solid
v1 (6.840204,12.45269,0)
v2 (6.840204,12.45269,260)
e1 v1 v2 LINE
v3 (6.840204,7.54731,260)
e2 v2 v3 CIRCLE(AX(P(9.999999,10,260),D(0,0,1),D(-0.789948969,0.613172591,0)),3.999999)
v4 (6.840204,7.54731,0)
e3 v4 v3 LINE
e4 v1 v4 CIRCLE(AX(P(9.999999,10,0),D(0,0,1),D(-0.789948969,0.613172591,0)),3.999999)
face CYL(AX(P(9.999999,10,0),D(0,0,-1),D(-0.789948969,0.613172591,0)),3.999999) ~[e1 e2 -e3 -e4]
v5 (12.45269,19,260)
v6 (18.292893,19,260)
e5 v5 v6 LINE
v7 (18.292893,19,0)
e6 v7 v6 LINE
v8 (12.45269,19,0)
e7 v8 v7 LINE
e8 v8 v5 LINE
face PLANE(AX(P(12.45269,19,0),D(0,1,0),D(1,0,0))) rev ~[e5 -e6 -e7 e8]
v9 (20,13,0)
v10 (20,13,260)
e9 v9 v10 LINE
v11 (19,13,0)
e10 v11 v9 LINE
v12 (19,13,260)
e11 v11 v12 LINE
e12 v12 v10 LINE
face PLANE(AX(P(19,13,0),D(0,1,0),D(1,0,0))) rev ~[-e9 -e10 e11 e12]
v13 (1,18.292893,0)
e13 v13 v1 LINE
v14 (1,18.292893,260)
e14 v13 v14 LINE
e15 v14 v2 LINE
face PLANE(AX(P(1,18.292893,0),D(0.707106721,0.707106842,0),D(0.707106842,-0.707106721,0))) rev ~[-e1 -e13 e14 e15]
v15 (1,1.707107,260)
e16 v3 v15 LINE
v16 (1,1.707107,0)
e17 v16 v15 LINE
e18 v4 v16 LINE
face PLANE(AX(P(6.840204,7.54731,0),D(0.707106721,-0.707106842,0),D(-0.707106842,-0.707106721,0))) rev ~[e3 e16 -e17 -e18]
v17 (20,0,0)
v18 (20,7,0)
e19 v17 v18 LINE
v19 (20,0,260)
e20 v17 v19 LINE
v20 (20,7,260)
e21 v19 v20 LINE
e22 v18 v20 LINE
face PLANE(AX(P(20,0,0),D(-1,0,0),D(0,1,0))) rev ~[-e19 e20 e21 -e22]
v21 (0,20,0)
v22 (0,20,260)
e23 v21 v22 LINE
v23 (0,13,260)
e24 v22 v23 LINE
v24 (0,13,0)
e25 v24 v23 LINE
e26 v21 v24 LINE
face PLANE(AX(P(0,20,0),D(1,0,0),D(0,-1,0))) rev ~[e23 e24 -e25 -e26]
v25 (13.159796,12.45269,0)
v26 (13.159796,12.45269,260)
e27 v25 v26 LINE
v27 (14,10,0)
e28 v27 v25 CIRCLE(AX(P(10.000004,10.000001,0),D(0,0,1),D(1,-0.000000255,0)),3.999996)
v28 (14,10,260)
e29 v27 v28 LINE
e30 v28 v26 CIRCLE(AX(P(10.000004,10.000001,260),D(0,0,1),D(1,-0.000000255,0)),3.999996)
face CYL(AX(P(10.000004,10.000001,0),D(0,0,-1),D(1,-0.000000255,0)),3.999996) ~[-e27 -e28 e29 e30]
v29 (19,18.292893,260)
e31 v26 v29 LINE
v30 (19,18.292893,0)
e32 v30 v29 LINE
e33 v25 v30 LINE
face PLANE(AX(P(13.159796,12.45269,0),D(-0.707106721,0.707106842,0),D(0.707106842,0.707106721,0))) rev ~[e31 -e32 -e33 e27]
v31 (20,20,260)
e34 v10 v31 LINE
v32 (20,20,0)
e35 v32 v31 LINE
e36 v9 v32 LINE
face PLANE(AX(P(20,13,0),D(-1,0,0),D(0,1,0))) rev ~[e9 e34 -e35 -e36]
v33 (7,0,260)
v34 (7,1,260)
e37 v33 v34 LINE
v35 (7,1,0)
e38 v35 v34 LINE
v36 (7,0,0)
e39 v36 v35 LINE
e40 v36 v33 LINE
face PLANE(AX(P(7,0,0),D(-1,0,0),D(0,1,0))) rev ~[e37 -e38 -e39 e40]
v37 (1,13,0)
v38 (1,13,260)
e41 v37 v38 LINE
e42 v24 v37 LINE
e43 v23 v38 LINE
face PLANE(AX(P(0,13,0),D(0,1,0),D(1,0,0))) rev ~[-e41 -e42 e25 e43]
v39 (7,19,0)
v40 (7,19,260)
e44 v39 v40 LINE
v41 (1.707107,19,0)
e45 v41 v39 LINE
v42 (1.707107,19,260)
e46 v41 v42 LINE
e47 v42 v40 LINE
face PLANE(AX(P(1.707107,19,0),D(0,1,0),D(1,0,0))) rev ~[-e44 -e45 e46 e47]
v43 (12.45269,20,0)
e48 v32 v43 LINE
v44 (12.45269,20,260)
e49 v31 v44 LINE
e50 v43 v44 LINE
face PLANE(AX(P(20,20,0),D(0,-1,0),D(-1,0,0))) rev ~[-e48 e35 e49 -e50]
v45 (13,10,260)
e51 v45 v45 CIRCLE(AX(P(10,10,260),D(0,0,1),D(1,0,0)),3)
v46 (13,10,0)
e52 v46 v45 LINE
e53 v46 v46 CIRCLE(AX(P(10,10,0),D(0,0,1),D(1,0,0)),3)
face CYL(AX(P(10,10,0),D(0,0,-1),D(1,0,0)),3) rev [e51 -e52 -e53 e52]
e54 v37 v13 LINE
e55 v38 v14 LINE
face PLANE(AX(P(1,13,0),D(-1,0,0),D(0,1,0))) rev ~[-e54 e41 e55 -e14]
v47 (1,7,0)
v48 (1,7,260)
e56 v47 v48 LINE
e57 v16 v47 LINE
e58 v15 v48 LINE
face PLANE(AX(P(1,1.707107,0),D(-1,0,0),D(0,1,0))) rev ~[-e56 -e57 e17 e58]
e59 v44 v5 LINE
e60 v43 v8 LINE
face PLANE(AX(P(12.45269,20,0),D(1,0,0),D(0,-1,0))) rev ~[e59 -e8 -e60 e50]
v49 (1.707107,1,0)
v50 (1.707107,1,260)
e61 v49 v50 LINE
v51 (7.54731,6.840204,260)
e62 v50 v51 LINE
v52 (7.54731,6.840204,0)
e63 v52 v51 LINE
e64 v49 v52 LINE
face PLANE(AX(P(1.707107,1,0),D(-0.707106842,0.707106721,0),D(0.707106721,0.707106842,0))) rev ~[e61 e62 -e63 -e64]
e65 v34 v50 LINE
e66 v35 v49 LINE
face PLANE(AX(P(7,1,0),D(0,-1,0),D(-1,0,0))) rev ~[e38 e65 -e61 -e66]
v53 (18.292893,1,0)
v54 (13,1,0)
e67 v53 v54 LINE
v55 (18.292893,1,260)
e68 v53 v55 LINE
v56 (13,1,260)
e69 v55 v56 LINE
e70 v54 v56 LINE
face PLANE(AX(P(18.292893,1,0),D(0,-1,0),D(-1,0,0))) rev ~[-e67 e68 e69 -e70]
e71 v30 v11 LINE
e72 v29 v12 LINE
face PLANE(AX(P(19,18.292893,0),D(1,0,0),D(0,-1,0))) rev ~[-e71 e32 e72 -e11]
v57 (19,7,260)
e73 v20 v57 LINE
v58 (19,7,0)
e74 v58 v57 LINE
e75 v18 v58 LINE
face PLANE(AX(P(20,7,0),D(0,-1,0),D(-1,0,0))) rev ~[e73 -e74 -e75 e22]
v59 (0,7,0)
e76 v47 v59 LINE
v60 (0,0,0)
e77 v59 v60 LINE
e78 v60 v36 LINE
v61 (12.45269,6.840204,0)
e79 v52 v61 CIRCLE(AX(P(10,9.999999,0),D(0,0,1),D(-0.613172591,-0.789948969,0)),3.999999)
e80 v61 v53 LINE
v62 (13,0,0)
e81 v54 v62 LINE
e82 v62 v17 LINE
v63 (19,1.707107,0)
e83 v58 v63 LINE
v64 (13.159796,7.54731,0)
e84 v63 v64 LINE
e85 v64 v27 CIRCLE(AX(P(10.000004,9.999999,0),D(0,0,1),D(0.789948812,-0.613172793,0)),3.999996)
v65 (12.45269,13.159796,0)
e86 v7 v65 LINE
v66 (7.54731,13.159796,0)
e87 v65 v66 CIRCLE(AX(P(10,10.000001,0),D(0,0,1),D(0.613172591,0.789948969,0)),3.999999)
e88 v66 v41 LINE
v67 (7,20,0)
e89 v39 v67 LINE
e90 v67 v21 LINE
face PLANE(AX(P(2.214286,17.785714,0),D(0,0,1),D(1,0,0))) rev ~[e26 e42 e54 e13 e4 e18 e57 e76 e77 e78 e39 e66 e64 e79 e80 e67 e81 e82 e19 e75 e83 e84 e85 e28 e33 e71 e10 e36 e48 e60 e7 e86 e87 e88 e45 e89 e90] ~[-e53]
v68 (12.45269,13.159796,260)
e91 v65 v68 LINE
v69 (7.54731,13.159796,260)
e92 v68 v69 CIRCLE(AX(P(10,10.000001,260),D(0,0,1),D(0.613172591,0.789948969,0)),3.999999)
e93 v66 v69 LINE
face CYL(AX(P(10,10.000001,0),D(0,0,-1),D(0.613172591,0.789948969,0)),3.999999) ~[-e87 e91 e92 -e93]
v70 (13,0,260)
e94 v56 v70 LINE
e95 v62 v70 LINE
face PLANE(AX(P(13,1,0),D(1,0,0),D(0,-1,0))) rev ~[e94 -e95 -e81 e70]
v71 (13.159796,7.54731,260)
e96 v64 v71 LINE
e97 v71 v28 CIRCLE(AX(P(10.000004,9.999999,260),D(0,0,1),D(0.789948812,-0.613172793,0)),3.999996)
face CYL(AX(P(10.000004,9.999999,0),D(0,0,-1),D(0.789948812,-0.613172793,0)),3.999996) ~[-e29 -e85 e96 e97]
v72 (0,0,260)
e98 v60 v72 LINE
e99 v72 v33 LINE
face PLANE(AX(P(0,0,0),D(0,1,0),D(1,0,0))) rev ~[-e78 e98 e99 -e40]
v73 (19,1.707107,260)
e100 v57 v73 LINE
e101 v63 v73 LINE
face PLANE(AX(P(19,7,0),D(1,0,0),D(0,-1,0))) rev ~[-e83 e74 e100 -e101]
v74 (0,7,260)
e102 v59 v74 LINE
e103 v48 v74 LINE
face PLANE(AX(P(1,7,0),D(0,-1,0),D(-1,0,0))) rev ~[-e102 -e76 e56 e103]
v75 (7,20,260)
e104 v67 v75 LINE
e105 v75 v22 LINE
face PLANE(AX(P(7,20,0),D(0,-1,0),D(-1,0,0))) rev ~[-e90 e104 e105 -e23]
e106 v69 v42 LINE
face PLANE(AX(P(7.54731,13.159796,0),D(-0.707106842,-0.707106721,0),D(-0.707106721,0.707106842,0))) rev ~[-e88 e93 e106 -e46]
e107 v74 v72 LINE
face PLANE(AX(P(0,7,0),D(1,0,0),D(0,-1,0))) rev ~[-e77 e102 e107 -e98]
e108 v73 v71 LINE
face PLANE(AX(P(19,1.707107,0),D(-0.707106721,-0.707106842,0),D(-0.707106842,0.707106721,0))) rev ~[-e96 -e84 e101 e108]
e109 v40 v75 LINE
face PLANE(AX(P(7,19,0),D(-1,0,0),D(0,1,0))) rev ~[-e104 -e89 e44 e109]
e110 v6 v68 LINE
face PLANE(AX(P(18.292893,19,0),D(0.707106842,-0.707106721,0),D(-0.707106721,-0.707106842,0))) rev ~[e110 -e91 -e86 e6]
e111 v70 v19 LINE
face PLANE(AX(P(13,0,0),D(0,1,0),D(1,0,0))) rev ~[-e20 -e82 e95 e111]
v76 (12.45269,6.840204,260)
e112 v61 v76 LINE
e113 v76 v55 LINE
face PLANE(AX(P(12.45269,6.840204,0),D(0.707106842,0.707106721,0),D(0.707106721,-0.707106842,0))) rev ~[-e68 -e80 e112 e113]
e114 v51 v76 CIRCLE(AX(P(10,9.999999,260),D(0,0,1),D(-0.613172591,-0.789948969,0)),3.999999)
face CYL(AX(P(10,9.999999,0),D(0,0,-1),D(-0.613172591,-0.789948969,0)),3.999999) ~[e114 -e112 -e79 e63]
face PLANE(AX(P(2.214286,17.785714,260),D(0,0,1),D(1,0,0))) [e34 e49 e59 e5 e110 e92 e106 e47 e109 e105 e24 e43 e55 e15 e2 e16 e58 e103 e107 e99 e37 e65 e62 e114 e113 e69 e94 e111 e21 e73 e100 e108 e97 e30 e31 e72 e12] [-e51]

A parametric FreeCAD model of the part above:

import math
import FreeCAD as App
import Part
import Sketcher
from FreeCAD import Vector
Q = App.Units.Quantity

doc = App.newDocument("Part")
body = doc.addObject("PartDesign::Body", "Body")

# Sketch on XY plane
sketch1 = body.newObject("Sketcher::SketchObject", "Sketch")
sketch1.AttachmentSupport = (doc.getObject("XY_Plane"), [""])
sketch1.MapMode = "FlatFace"
sketch1.addGeometry([
    Part.LineSegment(Vector(0, 20, 0), Vector(0, 13, 0)),  # 0
    Part.LineSegment(Vector(0, 13, 0), Vector(1, 13, 0)),  # 1
    Part.LineSegment(Vector(1, 13, 0), Vector(1, 18.3, 0)),  # 2
    Part.LineSegment(Vector(1, 18.3, 0), Vector(6.8, 12.5, 0)),  # 3
    Part.ArcOfCircle(Part.Circle(Vector(10, 10, 0), Vector(0, 0, 1), 4), math.radians(142), math.radians(218)),  # 4
    Part.LineSegment(Vector(6.8, 7.5, 0), Vector(1, 1.7, 0)),  # 5
    Part.LineSegment(Vector(1, 1.7, 0), Vector(1, 7, 0)),  # 6
    Part.LineSegment(Vector(1, 7, 0), Vector(0, 7, 0)),  # 7
    Part.LineSegment(Vector(0, 7, 0), Vector(0, 0, 0)),  # 8
    Part.LineSegment(Vector(0, 0, 0), Vector(7, 0, 0)),  # 9
    Part.LineSegment(Vector(7, 0, 0), Vector(7, 1, 0)),  # 10
    Part.LineSegment(Vector(7, 1, 0), Vector(1.7, 1, 0)),  # 11
    Part.LineSegment(Vector(1.7, 1, 0), Vector(7.5, 6.8, 0)),  # 12
    Part.ArcOfCircle(Part.Circle(Vector(10, 10, 0), Vector(0, 0, 1), 4), math.radians(-128), math.radians(-52)),  # 13
    Part.LineSegment(Vector(12.5, 6.8, 0), Vector(18.3, 1, 0)),  # 14
    Part.LineSegment(Vector(18.3, 1, 0), Vector(13, 1, 0)),  # 15
    Part.LineSegment(Vector(13, 1, 0), Vector(13, 0, 0)),  # 16
    Part.LineSegment(Vector(13, 0, 0), Vector(20, 0, 0)),  # 17
    Part.LineSegment(Vector(20, 0, 0), Vector(20, 7, 0)),  # 18
    Part.LineSegment(Vector(20, 7, 0), Vector(19, 7, 0)),  # 19
    Part.LineSegment(Vector(19, 7, 0), Vector(19, 1.7, 0)),  # 20
    Part.LineSegment(Vector(19, 1.7, 0), Vector(13.2, 7.5, 0)),  # 21
    Part.ArcOfCircle(Part.Circle(Vector(10, 10, 0), Vector(0, 0, 1), 4), math.radians(-38), math.radians(0)),  # 22
    Part.ArcOfCircle(Part.Circle(Vector(10, 10, 0), Vector(0, 0, 1), 4), math.radians(0), math.radians(38)),  # 23
    Part.LineSegment(Vector(13.2, 12.5, 0), Vector(19, 18.3, 0)),  # 24
    Part.LineSegment(Vector(19, 18.3, 0), Vector(19, 13, 0)),  # 25
    Part.LineSegment(Vector(19, 13, 0), Vector(20, 13, 0)),  # 26
    Part.LineSegment(Vector(20, 13, 0), Vector(20, 20, 0)),  # 27
    Part.LineSegment(Vector(20, 20, 0), Vector(12.5, 20, 0)),  # 28
    Part.LineSegment(Vector(12.5, 20, 0), Vector(12.5, 19, 0)),  # 29
    Part.LineSegment(Vector(12.5, 19, 0), Vector(18.3, 19, 0)),  # 30
    Part.LineSegment(Vector(18.3, 19, 0), Vector(12.5, 13.2, 0)),  # 31
    Part.ArcOfCircle(Part.Circle(Vector(10, 10, 0), Vector(0, 0, 1), 4), math.radians(52), math.radians(128)),  # 32
    Part.LineSegment(Vector(7.5, 13.2, 0), Vector(1.7, 19, 0)),  # 33
    Part.LineSegment(Vector(1.7, 19, 0), Vector(7, 19, 0)),  # 34
    Part.LineSegment(Vector(7, 19, 0), Vector(7, 20, 0)),  # 35
    Part.LineSegment(Vector(7, 20, 0), Vector(0, 20, 0)),  # 36
    Part.Circle(Vector(10, 10, 0), Vector(0, 0, 1), 3),  # 37
], False)
sketch1.addConstraint([
    Sketcher.Constraint("Coincident", 0, 2, 1, 1),
    Sketcher.Constraint("Coincident", 1, 2, 2, 1),
    Sketcher.Constraint("Coincident", 2, 2, 3, 1),
    Sketcher.Constraint("Coincident", 3, 2, 4, 1),
    Sketcher.Constraint("Coincident", 4, 2, 5, 1),
    Sketcher.Constraint("Coincident", 5, 2, 6, 1),
    Sketcher.Constraint("Coincident", 6, 2, 7, 1),
    Sketcher.Constraint("Coincident", 7, 2, 8, 1),
    Sketcher.Constraint("Coincident", 8, 2, 9, 1),
    Sketcher.Constraint("Coincident", 9, 2, 10, 1),
    Sketcher.Constraint("Coincident", 10, 2, 11, 1),
    Sketcher.Constraint("Coincident", 11, 2, 12, 1),
    Sketcher.Constraint("Coincident", 12, 2, 13, 1),
    Sketcher.Constraint("Coincident", 13, 2, 14, 1),
    Sketcher.Constraint("Coincident", 14, 2, 15, 1),
    Sketcher.Constraint("Coincident", 15, 2, 16, 1),
    Sketcher.Constraint("Coincident", 16, 2, 17, 1),
    Sketcher.Constraint("Coincident", 17, 2, 18, 1),
    Sketcher.Constraint("Coincident", 18, 2, 19, 1),
    Sketcher.Constraint("Coincident", 19, 2, 20, 1),
    Sketcher.Constraint("Coincident", 20, 2, 21, 1),
    Sketcher.Constraint("Coincident", 21, 2, 22, 1),
    Sketcher.Constraint("Tangent", 22, 2, 23, 1),
    Sketcher.Constraint("Coincident", 23, 2, 24, 1),
    Sketcher.Constraint("Coincident", 24, 2, 25, 1),
    Sketcher.Constraint("Coincident", 25, 2, 26, 1),
    Sketcher.Constraint("Coincident", 26, 2, 27, 1),
    Sketcher.Constraint("Coincident", 27, 2, 28, 1),
    Sketcher.Constraint("Coincident", 28, 2, 29, 1),
    Sketcher.Constraint("Coincident", 29, 2, 30, 1),
    Sketcher.Constraint("Coincident", 30, 2, 31, 1),
    Sketcher.Constraint("Coincident", 31, 2, 32, 1),
    Sketcher.Constraint("Coincident", 32, 2, 33, 1),
    Sketcher.Constraint("Coincident", 33, 2, 34, 1),
    Sketcher.Constraint("Coincident", 34, 2, 35, 1),
    Sketcher.Constraint("Coincident", 35, 2, 36, 1),
    Sketcher.Constraint("Coincident", 36, 2, 0, 1),
    Sketcher.Constraint("Vertical", 0),
    Sketcher.Constraint("Horizontal", 1),
    Sketcher.Constraint("Vertical", 2),
    Sketcher.Constraint("Vertical", 6),
    Sketcher.Constraint("Horizontal", 7),
    Sketcher.Constraint("Vertical", 8),
    Sketcher.Constraint("Horizontal", 9),
    Sketcher.Constraint("Vertical", 10),
    Sketcher.Constraint("Horizontal", 11),
    Sketcher.Constraint("Horizontal", 15),
    Sketcher.Constraint("Vertical", 16),
    Sketcher.Constraint("Horizontal", 17),
    Sketcher.Constraint("Vertical", 18),
    Sketcher.Constraint("Horizontal", 19),
    Sketcher.Constraint("Vertical", 20),
    Sketcher.Constraint("Vertical", 25),
    Sketcher.Constraint("Horizontal", 26),
    Sketcher.Constraint("Vertical", 27),
    Sketcher.Constraint("Horizontal", 28),
    Sketcher.Constraint("Vertical", 29),
    Sketcher.Constraint("Horizontal", 30),
    Sketcher.Constraint("Horizontal", 34),
    Sketcher.Constraint("Vertical", 35),
    Sketcher.Constraint("Horizontal", 36),
    Sketcher.Constraint("Coincident", 8, 2, -1, 1),
    Sketcher.Constraint("Coincident", 13, 3, 4, 3),
    Sketcher.Constraint("Coincident", 22, 3, 4, 3),
    Sketcher.Constraint("Coincident", 32, 3, 4, 3),
    Sketcher.Constraint("Coincident", 37, 3, 4, 3),
    Sketcher.Constraint("Equal", 4, 13),
    Sketcher.Constraint("Equal", 22, 23),
    Sketcher.Constraint("Equal", 13, 32),
    Sketcher.Constraint("PointOnObject", 0, 2, -2),
    Sketcher.Constraint("PointOnObject", 16, 2, -1),
    Sketcher.Constraint("Perpendicular", 3, 5),
    Sketcher.Constraint("Parallel", 5, 12),
    Sketcher.Constraint("Perpendicular", 12, 14),
    Sketcher.Constraint("Parallel", 14, 21),
    Sketcher.Constraint("Perpendicular", 21, 24),
    Sketcher.Constraint("Parallel", 24, 31),
    Sketcher.Constraint("Perpendicular", 31, 33),
    Sketcher.Constraint("Horizontal", 12, 2, 13, 2),
    Sketcher.Constraint("Horizontal", 11, 2, 14, 2),
    Sketcher.Constraint("Horizontal", 7, 2, 18, 2),
    Sketcher.Constraint("Horizontal", 5, 2, 20, 2),
    Sketcher.Constraint("Horizontal", 4, 2, 21, 2),
    Sketcher.Constraint("Horizontal", 37, 3, 22, 2),
    Sketcher.Constraint("Horizontal", 3, 2, 23, 2),
    Sketcher.Constraint("Horizontal", 2, 2, 24, 2),
    Sketcher.Constraint("Horizontal", 1, 2, 25, 2),
    Sketcher.Constraint("Horizontal", 31, 2, 32, 2),
    Sketcher.Constraint("Horizontal", 30, 2, 33, 2),
    Sketcher.Constraint("Horizontal", 28, 2, 35, 2),
    Sketcher.Constraint("Vertical", 3, 2, 4, 2),
    Sketcher.Constraint("Vertical", 2, 2, 5, 2),
    Sketcher.Constraint("Vertical", 20, 2, 24, 2),
    Sketcher.Constraint("Vertical", 18, 2, 26, 2),
    Sketcher.Constraint("Vertical", 13, 2, 28, 2),
    Sketcher.Constraint("Vertical", 14, 2, 30, 2),
    Sketcher.Constraint("Vertical", 29, 2, 31, 2),
    Sketcher.Constraint("Vertical", 10, 2, 34, 2),
    Sketcher.Constraint("Equal", 11, 15),
    Sketcher.Constraint("Equal", 9, 17),
    Sketcher.Constraint("Equal", 7, 19),
    Sketcher.Constraint("Equal", 36, 0),
    Sketcher.Constraint("Equal", 34, 2),
    Sketcher.Constraint("Equal", 2, 6),
    Sketcher.Constraint("Equal", 0, 8),
    Sketcher.Constraint("Equal", 26, 10),
    Sketcher.Constraint("Equal", 5, 12),
    Sketcher.Constraint("Diameter", 37, Q("6 mm")),
    Sketcher.Constraint("Radius", 4, Q("3.999999 mm")),
    Sketcher.Constraint("DistanceX", 1, 1, 1, 2, Q("1 mm")),
    Sketcher.Constraint("DistanceX", 9, 1, 9, 2, Q("7 mm")),
    Sketcher.Constraint("DistanceX", -1, 1, 4, 3, Q("9.999999 mm")),
    Sketcher.Constraint("DistanceX", 28, 2, 28, 1, Q("7.54731 mm")),
])
pad1 = body.newObject("PartDesign::Pad", "Pad")
pad1.Profile = sketch1
pad1.Length = 260

doc.recompute()
